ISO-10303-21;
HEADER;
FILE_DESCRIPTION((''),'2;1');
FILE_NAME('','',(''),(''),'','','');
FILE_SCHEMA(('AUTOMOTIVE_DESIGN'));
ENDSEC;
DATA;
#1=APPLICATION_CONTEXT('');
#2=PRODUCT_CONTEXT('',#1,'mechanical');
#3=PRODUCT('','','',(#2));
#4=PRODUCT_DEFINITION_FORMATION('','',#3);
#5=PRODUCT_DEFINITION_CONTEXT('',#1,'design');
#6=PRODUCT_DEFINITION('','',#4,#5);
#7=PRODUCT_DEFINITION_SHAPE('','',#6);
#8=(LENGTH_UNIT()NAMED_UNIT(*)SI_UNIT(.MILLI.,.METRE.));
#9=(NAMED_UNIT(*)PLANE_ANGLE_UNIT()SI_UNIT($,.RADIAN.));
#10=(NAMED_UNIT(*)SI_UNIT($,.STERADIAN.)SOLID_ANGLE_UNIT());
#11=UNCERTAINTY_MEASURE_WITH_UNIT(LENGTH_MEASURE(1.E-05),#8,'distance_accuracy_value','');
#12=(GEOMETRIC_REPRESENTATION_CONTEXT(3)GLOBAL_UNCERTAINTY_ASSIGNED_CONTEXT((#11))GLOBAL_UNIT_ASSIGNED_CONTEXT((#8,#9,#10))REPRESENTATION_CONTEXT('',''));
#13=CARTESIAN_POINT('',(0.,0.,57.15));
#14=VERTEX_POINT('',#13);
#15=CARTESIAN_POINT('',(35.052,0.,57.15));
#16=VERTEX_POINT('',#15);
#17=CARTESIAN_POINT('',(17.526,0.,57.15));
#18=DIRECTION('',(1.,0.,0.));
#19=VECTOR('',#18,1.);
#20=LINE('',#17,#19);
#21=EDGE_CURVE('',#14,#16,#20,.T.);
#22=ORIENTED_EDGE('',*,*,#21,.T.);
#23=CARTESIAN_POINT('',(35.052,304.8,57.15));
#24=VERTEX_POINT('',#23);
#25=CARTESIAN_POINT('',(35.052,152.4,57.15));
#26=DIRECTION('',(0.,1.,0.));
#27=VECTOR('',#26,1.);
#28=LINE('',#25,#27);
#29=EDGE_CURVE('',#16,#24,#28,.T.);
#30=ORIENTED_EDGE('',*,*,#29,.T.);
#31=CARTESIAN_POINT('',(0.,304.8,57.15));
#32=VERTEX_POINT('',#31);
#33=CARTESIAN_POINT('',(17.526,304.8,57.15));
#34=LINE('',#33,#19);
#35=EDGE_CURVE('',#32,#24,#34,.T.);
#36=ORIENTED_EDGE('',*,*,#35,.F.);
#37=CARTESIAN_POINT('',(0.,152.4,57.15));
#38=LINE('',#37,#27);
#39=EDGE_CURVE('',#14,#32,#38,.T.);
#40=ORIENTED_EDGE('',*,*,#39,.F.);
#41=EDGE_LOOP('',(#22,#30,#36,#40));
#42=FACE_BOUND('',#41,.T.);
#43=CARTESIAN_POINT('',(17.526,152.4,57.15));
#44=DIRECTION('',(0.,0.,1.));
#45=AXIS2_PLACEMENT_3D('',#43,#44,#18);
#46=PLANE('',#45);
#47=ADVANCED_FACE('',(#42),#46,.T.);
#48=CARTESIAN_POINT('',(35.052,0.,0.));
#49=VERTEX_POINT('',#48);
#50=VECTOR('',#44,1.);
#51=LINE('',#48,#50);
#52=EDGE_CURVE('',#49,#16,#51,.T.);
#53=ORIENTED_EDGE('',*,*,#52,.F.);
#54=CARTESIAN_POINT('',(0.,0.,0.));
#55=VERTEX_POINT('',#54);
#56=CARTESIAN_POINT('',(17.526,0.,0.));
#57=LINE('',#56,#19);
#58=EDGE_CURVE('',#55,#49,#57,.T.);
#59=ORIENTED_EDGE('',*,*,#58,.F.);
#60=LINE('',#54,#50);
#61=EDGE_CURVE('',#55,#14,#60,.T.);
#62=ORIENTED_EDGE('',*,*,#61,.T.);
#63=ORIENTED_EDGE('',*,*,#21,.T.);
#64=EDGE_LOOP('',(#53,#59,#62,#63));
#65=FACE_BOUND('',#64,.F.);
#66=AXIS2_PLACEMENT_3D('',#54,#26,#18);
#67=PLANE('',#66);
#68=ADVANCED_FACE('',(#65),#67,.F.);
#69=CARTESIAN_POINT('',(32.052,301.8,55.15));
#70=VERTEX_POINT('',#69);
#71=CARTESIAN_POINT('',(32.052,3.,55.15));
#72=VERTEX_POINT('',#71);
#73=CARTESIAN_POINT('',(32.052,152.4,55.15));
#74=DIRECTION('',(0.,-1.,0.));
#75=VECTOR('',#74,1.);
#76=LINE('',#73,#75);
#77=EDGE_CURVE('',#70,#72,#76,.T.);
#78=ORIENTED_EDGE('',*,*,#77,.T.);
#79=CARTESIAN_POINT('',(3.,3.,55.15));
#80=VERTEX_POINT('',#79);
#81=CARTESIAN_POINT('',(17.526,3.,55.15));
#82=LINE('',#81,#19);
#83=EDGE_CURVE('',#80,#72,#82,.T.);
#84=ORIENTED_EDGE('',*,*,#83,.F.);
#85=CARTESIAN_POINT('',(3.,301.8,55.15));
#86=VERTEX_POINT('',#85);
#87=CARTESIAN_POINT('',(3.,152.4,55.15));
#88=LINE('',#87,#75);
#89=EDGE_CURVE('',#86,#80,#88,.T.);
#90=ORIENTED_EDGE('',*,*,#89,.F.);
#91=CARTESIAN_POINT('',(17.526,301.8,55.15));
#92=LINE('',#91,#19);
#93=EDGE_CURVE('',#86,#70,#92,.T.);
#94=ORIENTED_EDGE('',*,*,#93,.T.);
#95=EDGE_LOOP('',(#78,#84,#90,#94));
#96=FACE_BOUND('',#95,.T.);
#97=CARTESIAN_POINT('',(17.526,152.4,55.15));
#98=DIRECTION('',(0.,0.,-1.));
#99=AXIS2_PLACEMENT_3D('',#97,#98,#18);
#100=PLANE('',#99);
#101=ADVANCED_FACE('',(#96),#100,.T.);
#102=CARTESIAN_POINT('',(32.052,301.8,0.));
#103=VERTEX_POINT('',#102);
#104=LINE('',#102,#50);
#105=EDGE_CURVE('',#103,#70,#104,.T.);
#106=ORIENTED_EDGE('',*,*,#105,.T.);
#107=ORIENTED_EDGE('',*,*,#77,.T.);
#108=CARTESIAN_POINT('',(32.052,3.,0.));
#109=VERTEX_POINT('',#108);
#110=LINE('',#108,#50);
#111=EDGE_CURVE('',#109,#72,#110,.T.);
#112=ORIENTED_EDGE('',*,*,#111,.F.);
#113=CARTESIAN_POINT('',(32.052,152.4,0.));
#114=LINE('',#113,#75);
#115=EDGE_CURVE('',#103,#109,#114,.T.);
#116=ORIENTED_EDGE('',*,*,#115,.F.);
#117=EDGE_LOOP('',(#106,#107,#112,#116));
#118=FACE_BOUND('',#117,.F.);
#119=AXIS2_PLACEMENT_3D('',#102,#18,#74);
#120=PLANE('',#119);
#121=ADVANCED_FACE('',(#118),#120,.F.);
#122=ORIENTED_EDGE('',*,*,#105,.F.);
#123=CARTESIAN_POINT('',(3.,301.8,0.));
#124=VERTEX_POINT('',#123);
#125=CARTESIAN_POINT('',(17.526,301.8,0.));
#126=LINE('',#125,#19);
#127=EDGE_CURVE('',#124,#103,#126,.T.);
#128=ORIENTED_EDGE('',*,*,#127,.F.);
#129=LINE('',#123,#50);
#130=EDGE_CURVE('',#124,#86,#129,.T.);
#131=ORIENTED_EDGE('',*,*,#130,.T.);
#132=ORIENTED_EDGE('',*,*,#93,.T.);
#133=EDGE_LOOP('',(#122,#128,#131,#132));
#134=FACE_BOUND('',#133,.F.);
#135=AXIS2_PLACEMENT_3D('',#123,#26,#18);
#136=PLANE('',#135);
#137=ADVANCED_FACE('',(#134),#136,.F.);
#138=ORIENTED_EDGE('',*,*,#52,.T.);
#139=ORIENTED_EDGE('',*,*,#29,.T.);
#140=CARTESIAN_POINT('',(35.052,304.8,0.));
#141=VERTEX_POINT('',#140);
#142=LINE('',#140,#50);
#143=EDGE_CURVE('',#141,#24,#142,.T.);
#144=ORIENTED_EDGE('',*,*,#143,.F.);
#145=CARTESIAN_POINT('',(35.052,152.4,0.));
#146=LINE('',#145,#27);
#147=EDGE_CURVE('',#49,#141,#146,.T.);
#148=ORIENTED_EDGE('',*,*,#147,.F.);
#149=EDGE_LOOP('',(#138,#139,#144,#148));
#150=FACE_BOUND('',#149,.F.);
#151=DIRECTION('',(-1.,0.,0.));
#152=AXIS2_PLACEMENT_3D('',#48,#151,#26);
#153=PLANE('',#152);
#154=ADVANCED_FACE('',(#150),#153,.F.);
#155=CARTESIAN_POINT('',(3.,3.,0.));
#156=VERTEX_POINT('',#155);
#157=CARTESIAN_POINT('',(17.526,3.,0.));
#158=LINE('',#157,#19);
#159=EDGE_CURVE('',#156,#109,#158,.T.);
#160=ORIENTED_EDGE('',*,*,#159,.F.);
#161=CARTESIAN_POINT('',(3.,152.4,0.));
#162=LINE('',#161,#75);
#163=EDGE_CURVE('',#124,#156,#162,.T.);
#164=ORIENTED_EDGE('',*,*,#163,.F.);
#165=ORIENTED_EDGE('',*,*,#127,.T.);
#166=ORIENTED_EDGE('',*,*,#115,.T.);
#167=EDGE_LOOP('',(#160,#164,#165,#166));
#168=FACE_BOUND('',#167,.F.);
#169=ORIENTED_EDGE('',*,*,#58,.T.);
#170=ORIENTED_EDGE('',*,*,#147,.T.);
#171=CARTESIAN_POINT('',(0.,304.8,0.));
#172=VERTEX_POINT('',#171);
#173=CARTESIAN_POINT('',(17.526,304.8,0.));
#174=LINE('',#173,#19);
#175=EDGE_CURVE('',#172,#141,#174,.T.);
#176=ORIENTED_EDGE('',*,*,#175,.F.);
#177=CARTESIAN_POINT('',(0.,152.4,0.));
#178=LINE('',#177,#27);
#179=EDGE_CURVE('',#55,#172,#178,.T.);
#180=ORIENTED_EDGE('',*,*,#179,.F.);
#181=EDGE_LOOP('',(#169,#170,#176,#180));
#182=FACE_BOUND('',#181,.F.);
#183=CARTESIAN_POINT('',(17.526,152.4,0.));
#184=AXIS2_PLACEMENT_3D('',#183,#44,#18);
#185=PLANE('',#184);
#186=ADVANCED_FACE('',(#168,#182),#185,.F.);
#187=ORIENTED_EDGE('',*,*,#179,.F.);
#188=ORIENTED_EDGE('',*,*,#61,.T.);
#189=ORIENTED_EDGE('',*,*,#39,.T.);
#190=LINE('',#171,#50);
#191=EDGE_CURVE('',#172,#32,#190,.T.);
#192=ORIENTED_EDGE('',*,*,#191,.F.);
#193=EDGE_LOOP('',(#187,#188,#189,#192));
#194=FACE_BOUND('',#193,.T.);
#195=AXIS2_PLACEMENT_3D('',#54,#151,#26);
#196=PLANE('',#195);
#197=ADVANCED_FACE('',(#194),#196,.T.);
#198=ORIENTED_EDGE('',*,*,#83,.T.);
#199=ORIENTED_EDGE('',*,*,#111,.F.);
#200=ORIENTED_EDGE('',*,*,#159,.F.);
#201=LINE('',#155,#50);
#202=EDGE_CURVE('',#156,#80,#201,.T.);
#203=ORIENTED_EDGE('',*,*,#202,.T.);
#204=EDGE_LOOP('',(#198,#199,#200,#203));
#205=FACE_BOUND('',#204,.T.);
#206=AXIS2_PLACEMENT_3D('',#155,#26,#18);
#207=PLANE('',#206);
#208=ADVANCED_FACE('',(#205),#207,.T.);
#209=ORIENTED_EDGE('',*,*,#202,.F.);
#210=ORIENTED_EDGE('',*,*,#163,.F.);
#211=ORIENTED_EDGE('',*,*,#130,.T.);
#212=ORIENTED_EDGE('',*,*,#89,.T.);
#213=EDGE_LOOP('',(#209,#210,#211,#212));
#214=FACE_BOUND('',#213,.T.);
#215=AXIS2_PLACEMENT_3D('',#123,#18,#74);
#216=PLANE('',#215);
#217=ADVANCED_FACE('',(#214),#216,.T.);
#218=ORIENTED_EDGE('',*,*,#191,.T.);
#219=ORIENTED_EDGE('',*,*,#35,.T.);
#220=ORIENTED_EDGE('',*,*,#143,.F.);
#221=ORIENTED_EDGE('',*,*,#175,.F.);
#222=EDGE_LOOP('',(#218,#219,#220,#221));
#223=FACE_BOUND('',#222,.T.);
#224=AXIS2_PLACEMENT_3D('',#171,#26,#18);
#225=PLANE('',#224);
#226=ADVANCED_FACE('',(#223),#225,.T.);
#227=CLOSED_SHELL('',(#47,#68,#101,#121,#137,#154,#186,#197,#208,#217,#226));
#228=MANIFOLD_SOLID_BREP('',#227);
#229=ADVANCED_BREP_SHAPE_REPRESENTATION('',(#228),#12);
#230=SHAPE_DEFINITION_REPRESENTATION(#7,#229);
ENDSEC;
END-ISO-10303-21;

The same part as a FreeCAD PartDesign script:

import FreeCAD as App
import Part
import Sketcher

V = App.Vector
Q = App.Units.Quantity

doc = App.newDocument("Part")
params = doc.addObject("Spreadsheet::Sheet", "Params")
for row, (alias, value) in enumerate([
    ("pad1_length", "55.15 mm"),
    ("sketch2_height", "12 in"),
    ("sketch2_width", "1.38 in"),
    ("pad2_length", "2.25 in"),
], start=1):
    params.set(f"A{row}", alias)
    params.set(f"B{row}", "=" + value)
    params.setAlias(f"B{row}", alias)

body = doc.addObject("PartDesign::Body", "Body")

# Sketch on XY plane
sketch1 = doc.addObject("Sketcher::SketchObject", "Sketch")
body.addObject(sketch1)
sketch1.AttachmentSupport = (doc.XY_Plane, [""])
sketch1.MapMode = "FlatFace"
sketch1.addGeometry([
    Part.LineSegment(V(3, 3, 0), V(3, 301.8, 0)),
    Part.LineSegment(V(3, 301.8, 0), V(32.052, 301.8, 0)),
    Part.LineSegment(V(32.052, 301.8, 0), V(32.052, 3, 0)),
    Part.LineSegment(V(32.052, 3, 0), V(3, 3, 0)),
], False)
sketch1.addConstraint([
    Sketcher.Constraint("Coincident", 0, 2, 1, 1),
    Sketcher.Constraint("Coincident", 1, 2, 2, 1),
    Sketcher.Constraint("Coincident", 2, 2, 3, 1),
    Sketcher.Constraint("Coincident", 3, 2, 0, 1),
    Sketcher.Constraint("Vertical", 0),
    Sketcher.Constraint("Horizontal", 1),
    Sketcher.Constraint("Vertical", 2),
    Sketcher.Constraint("Horizontal", 3),
    Sketcher.Constraint("DistanceX", 1, 1, 1, 2, 29.052),
    Sketcher.Constraint("DistanceY", 0, 1, 0, 2, 298.8),
    Sketcher.Constraint("DistanceX", -1, 1, 0, 2, 3.0),
    Sketcher.Constraint("DistanceY", -1, 1, 0, 2, 301.8),
])
pad1 = doc.addObject("PartDesign::Pad", "Pad")
body.addObject(pad1)
pad1.Profile = sketch1
pad1.setExpression("Length", "Params.pad1_length")
body2 = doc.addObject("PartDesign::Body", "Body001")

# Sketch on XY plane
sketch2 = doc.addObject("Sketcher::SketchObject", "Sketch001")
body2.addObject(sketch2)
sketch2.AttachmentSupport = (doc.getObject("XY_Plane001"), [""])
sketch2.MapMode = "FlatFace"
sketch2.addGeometry([
    Part.LineSegment(V(0, 304.8, 0), V(0, 0, 0)),
    Part.LineSegment(V(0, 0, 0), V(35.052, 0, 0)),
    Part.LineSegment(V(35.052, 0, 0), V(35.052, 304.8, 0)),
    Part.LineSegment(V(35.052, 304.8, 0), V(0, 304.8, 0)),
], False)
sketch2.addConstraint([
    Sketcher.Constraint("Coincident", 0, 2, 1, 1),
    Sketcher.Constraint("Coincident", 1, 2, 2, 1),
    Sketcher.Constraint("Coincident", 2, 2, 3, 1),
    Sketcher.Constraint("Coincident", 3, 2, 0, 1),
    Sketcher.Constraint("Vertical", 0),
    Sketcher.Constraint("Horizontal", 1),
    Sketcher.Constraint("Vertical", 2),
    Sketcher.Constraint("Horizontal", 3),
    Sketcher.Constraint("Coincident", 0, 2, -1, 1),
    Sketcher.Constraint("DistanceY", 0, 2, 0, 1, Q("12 in")),
    Sketcher.Constraint("DistanceX", 1, 1, 1, 2, Q("1.38 in")),
])
sketch2.setExpression("Constraints[9]", "Params.sketch2_height")
sketch2.setExpression("Constraints[10]", "Params.sketch2_width")
pad2 = doc.addObject("PartDesign::Pad", "Pad001")
body2.addObject(pad2)
pad2.Profile = sketch2
pad2.setExpression("Length", "Params.pad2_length")
doc.recompute()

boolean = doc.addObject("PartDesign::Boolean", "Boolean")
body2.addObject(boolean)
boolean.Type = "Cut"
boolean.addObjects([body])

doc.recompute()
